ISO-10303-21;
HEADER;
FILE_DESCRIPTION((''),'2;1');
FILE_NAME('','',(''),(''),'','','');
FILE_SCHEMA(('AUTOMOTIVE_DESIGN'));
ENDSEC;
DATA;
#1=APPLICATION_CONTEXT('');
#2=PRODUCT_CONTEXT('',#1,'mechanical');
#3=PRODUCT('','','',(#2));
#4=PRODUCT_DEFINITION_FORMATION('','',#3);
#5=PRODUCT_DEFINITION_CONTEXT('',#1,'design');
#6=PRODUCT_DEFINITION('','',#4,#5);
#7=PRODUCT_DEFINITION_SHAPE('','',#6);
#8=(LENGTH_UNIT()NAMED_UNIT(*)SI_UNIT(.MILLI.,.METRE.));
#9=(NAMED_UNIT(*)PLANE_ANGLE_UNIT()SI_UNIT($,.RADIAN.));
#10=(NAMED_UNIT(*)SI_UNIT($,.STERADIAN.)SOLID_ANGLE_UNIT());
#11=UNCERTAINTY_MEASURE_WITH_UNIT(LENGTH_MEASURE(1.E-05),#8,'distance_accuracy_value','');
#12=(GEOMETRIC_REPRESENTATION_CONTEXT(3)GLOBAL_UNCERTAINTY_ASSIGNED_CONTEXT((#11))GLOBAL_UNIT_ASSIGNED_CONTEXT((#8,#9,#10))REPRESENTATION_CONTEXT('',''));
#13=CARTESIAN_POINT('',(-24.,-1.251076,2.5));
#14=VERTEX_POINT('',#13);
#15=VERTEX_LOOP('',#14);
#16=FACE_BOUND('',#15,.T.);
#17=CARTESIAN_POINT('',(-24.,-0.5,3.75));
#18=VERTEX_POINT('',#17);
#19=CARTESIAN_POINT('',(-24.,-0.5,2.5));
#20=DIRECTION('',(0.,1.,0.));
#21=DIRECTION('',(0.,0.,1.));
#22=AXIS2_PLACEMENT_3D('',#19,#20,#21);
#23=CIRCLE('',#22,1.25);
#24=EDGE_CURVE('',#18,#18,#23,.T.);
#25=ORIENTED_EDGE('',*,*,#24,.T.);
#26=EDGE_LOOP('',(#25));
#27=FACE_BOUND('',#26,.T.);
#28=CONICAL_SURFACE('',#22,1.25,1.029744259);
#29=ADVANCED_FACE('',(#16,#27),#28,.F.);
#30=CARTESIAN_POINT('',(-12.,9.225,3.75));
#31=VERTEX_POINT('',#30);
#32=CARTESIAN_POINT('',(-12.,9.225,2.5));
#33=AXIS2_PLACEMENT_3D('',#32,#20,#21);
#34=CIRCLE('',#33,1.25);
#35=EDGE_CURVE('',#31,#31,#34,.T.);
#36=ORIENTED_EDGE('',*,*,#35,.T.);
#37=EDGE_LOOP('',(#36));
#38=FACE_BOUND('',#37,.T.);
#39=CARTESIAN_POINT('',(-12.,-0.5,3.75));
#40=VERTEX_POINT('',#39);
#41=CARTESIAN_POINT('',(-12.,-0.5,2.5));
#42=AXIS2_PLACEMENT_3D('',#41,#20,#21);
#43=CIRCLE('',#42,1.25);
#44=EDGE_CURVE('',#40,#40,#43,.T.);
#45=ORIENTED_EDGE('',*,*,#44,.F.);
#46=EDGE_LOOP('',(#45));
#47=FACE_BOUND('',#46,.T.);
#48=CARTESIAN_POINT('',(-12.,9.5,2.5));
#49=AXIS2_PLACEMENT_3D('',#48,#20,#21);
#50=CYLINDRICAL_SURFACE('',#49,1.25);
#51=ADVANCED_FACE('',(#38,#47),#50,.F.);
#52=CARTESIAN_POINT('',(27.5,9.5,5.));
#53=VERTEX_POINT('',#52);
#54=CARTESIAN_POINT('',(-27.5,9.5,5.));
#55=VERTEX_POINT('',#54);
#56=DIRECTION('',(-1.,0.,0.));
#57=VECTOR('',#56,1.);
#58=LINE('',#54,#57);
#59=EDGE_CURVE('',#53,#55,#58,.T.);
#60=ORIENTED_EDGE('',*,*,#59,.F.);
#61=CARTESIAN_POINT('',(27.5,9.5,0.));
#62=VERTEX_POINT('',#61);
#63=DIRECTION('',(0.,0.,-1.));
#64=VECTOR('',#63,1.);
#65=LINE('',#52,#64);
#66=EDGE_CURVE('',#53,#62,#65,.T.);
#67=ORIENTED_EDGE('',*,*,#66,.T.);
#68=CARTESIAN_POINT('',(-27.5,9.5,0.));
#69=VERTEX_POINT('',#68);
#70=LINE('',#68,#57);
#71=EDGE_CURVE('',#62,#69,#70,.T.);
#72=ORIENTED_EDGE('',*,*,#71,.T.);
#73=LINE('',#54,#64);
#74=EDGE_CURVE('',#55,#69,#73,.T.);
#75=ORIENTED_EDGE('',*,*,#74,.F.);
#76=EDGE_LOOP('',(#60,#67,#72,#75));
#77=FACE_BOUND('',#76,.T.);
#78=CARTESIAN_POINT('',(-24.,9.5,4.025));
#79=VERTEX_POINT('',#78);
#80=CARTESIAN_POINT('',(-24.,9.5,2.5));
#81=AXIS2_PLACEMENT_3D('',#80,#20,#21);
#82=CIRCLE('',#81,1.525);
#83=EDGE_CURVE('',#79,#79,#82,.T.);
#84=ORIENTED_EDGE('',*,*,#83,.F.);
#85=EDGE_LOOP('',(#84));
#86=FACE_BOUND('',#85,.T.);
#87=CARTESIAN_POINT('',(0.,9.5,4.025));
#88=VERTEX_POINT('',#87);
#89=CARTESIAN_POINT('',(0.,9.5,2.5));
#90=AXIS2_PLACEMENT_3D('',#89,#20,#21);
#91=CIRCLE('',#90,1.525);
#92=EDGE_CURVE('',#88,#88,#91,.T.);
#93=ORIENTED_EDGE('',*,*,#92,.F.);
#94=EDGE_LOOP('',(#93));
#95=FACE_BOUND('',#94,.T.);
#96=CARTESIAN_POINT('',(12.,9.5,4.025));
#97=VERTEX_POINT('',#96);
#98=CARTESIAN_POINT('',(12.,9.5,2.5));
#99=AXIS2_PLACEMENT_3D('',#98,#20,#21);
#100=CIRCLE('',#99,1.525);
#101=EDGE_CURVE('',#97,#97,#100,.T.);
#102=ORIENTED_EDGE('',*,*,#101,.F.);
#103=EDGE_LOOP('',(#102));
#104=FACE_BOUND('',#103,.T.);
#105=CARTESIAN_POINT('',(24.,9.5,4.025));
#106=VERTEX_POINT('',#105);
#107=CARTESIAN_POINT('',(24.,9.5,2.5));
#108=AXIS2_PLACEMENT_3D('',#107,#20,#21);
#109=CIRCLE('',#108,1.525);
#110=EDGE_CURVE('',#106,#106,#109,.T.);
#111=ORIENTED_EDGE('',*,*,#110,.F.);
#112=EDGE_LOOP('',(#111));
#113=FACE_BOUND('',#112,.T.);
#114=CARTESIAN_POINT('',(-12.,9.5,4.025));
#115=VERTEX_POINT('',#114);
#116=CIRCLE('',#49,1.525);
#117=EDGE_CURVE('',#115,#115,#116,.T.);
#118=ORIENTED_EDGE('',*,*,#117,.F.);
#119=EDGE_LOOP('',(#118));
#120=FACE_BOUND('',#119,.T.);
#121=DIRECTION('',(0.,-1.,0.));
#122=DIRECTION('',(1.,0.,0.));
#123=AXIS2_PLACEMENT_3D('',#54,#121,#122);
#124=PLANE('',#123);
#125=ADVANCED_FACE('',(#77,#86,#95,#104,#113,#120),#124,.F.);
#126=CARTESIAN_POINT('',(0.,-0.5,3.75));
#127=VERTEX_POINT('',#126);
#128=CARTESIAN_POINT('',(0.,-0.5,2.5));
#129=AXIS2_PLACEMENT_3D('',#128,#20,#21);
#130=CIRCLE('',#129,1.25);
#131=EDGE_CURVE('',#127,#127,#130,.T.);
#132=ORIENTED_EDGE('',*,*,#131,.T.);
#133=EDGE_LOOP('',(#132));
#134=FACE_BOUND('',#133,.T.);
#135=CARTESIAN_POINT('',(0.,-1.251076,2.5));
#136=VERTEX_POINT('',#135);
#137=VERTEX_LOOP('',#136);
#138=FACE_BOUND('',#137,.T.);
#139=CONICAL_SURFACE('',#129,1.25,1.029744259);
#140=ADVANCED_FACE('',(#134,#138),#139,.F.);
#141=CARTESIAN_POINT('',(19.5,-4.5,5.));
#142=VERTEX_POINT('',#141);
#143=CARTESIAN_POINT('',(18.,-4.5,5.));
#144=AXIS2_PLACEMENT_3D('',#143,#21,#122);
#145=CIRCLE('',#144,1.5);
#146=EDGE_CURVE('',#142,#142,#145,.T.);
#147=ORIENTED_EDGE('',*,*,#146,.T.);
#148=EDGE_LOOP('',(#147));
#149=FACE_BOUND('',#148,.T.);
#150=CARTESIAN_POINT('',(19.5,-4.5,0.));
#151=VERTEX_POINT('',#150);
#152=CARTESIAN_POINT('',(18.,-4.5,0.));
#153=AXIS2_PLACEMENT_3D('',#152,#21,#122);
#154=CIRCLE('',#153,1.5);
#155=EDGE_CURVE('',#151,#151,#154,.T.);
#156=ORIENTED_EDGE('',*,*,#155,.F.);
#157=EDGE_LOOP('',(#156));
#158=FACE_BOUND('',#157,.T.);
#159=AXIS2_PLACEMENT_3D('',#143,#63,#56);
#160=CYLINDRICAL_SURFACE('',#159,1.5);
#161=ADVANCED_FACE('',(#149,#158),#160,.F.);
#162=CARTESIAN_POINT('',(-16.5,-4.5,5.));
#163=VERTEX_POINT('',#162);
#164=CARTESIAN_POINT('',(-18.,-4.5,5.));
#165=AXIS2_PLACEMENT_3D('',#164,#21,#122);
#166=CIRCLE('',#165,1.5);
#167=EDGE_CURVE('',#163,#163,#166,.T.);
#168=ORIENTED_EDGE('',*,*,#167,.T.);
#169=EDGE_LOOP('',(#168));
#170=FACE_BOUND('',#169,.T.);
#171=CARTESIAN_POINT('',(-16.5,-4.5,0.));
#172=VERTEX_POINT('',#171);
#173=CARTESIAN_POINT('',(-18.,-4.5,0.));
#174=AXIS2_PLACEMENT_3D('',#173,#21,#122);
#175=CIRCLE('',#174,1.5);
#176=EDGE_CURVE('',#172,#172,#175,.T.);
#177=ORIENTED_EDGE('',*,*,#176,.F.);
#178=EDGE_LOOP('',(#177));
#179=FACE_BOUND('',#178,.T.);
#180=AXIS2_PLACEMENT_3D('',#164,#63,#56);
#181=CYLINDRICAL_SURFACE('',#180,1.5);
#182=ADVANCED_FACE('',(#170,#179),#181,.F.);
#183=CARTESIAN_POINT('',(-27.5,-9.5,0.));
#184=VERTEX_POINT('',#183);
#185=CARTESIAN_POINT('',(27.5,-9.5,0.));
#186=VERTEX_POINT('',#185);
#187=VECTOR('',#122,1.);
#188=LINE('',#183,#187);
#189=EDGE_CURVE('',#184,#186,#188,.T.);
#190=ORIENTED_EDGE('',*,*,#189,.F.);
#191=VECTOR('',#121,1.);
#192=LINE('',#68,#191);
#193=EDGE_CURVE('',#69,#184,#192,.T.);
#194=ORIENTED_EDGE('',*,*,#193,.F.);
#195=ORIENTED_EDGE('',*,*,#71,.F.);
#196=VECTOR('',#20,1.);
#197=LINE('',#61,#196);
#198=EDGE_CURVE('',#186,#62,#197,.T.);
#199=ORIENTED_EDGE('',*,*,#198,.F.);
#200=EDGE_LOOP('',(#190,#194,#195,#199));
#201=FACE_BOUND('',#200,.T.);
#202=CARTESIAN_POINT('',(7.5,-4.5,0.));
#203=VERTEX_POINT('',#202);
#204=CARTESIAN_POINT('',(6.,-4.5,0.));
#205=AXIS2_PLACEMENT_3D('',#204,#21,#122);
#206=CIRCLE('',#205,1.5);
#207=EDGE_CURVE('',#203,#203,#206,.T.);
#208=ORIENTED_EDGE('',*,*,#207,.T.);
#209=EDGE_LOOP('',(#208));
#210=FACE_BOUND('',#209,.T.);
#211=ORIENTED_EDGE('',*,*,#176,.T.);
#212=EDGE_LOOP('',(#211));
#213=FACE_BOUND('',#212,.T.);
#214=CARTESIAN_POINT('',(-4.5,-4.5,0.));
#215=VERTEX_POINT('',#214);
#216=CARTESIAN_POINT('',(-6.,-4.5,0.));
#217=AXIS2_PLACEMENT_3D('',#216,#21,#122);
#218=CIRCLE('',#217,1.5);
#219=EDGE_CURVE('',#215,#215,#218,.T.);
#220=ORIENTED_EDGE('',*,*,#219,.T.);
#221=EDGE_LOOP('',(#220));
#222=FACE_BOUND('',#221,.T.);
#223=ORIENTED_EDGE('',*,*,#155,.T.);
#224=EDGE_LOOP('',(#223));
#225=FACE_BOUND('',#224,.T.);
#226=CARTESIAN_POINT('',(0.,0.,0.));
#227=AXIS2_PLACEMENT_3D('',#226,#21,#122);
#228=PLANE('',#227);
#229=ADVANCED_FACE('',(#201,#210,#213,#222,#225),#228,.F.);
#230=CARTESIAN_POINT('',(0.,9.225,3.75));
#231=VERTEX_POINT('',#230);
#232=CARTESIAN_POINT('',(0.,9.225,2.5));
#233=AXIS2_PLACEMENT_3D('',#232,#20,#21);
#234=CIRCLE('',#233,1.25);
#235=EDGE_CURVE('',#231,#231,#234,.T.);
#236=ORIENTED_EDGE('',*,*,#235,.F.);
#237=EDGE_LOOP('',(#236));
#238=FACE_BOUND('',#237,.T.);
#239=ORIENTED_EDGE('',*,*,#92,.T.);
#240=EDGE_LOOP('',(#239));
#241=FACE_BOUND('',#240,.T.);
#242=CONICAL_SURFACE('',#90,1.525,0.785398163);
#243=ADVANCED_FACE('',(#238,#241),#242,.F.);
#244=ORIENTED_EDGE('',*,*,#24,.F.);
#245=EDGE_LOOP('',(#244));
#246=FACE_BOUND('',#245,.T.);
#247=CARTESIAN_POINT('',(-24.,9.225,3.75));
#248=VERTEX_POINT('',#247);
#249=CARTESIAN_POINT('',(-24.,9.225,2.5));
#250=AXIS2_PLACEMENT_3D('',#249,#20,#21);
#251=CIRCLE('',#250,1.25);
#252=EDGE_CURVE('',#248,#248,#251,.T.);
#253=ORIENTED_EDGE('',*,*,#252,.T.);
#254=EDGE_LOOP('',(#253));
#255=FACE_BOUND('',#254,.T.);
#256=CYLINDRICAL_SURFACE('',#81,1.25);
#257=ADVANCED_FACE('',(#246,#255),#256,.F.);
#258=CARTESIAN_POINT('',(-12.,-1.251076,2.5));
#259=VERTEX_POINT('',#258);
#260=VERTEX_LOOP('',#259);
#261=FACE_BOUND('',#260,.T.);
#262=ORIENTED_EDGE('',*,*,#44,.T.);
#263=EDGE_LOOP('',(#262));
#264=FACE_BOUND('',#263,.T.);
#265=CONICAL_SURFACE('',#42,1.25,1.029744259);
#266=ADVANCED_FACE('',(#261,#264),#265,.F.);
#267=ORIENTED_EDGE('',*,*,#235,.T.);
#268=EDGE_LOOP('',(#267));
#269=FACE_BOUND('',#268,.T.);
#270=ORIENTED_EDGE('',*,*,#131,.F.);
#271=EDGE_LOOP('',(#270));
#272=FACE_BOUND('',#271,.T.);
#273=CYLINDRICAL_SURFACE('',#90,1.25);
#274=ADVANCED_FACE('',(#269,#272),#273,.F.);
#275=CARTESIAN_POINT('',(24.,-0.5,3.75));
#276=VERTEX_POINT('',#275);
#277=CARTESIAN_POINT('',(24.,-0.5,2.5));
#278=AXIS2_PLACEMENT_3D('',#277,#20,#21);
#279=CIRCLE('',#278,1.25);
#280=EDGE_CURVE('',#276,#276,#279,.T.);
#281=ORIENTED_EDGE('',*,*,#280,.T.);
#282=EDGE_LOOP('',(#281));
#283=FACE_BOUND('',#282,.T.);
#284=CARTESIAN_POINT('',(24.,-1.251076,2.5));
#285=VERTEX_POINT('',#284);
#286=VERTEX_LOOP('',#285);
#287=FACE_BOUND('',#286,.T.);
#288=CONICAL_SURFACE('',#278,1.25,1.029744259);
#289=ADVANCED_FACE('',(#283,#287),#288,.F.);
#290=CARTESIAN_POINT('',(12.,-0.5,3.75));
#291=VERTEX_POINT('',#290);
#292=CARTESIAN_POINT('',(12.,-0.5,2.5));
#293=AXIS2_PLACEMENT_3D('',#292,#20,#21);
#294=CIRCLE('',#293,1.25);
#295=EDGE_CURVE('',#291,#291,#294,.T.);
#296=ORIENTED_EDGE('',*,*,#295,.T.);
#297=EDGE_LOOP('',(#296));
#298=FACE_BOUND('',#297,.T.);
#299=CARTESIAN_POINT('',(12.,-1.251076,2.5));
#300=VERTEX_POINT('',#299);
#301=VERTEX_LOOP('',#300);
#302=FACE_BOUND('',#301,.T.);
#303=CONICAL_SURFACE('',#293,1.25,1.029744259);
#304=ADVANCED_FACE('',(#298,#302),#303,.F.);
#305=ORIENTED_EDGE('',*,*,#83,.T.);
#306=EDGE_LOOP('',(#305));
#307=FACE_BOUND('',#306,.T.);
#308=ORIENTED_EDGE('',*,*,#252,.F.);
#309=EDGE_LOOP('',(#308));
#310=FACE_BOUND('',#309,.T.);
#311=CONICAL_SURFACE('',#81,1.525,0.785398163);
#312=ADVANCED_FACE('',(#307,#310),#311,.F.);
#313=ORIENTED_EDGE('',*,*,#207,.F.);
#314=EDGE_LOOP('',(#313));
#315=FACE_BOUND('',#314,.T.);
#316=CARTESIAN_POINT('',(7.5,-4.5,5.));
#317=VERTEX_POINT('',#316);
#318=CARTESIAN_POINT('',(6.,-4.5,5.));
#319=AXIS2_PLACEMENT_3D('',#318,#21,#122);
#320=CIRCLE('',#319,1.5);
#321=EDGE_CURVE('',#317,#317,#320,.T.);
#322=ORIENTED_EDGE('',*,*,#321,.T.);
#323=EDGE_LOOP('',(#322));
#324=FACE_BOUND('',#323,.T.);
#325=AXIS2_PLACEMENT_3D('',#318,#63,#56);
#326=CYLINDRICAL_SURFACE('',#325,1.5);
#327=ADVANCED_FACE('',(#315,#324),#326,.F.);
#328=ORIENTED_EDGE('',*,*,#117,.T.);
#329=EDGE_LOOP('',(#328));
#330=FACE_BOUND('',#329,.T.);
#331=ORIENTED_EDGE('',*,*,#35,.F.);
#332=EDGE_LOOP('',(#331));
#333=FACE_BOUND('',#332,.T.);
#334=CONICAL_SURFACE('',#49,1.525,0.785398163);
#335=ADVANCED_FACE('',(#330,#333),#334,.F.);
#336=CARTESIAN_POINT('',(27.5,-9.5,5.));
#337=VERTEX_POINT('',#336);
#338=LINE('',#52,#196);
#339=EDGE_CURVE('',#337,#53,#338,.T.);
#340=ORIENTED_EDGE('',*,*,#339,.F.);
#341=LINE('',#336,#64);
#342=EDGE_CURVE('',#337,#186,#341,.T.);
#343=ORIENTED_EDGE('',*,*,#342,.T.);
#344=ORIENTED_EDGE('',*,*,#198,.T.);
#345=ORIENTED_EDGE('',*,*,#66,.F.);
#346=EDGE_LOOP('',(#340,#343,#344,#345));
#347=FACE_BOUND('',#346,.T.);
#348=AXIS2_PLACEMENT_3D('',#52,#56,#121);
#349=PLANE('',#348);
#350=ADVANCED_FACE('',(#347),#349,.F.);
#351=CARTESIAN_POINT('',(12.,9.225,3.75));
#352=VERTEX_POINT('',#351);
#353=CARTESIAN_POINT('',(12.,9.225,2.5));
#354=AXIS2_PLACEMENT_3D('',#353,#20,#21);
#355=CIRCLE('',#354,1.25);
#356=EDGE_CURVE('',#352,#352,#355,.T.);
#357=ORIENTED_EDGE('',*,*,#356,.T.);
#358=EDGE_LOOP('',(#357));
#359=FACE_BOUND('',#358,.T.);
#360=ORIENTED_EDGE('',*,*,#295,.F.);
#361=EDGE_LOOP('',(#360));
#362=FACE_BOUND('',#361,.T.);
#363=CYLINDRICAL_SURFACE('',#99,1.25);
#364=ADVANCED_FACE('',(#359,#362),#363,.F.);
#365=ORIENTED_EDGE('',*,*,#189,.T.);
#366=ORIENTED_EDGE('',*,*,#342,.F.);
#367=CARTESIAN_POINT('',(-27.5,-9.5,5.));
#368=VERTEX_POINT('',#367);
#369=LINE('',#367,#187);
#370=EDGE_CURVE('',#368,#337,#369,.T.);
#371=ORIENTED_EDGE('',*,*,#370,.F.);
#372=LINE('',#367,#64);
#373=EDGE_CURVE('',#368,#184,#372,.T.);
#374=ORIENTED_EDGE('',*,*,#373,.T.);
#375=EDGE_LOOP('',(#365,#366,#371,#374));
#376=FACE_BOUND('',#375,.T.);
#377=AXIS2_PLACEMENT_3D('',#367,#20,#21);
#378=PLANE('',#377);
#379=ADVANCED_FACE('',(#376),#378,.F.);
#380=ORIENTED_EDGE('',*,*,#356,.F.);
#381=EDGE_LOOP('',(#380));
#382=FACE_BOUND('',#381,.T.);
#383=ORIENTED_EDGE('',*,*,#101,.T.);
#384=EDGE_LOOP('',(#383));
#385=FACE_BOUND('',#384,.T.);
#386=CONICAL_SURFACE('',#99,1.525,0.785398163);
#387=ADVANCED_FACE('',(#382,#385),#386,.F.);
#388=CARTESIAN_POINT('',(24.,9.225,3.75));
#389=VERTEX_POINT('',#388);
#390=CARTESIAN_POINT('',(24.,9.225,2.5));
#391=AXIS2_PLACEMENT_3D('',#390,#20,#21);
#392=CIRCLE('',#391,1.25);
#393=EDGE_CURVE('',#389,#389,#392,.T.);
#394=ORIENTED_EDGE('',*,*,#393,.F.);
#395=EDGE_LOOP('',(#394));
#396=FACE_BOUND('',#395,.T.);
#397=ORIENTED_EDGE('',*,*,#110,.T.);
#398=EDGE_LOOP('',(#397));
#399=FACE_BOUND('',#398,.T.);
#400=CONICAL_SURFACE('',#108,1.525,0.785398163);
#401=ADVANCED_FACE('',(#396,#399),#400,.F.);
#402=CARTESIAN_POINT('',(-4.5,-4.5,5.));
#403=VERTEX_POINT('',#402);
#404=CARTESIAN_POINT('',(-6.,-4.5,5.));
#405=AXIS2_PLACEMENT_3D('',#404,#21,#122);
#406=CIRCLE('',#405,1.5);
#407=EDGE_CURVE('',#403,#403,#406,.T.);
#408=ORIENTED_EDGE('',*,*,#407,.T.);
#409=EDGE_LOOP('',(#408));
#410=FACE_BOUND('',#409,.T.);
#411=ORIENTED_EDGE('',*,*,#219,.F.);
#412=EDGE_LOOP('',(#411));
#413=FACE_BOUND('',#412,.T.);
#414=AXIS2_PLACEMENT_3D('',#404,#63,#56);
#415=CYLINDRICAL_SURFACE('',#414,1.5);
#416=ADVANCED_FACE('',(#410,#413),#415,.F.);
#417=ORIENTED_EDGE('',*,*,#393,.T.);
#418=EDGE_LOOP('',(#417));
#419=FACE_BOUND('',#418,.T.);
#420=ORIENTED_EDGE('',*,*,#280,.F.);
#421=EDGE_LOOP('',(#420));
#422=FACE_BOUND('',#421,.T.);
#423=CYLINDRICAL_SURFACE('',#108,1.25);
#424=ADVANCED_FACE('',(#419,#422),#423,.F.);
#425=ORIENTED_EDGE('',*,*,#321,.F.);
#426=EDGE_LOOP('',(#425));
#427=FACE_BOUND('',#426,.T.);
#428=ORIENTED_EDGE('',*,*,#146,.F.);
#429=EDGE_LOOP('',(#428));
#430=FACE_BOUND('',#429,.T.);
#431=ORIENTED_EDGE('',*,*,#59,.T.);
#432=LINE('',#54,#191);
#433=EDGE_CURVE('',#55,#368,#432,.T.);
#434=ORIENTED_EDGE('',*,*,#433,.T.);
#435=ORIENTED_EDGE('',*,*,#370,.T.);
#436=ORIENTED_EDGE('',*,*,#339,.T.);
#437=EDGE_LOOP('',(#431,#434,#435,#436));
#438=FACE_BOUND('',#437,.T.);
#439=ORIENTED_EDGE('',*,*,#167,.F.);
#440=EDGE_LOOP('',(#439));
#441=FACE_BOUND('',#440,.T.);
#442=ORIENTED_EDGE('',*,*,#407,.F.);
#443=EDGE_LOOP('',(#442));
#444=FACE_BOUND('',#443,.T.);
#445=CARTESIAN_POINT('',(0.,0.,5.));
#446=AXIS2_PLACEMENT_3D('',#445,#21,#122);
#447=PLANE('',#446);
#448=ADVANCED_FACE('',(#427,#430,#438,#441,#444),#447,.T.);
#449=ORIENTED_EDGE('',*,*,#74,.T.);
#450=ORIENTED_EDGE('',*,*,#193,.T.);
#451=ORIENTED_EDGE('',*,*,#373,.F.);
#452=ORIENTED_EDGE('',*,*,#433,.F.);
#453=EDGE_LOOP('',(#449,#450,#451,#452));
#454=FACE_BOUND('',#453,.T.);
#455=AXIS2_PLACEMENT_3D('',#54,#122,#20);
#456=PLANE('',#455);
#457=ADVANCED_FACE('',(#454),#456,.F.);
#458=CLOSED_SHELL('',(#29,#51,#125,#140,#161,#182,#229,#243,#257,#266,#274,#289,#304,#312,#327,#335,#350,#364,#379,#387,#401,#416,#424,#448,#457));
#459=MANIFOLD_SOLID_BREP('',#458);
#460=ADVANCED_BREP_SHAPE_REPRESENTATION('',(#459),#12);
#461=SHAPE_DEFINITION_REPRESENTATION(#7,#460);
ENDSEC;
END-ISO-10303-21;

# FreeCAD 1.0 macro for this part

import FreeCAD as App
import Part
import Sketcher

V = App.Vector


def add_polygon(sketch, points):
    """Adds a closed chain of lines whose ends are joined by coincident constraints."""
    first, n = sketch.GeometryCount, len(points)
    for a, b in zip(points, points[1:] + points[:1]):
        sketch.addGeometry(Part.LineSegment(App.Vector(*a, 0), App.Vector(*b, 0)), False)
    for i in range(n):
        sketch.addConstraint(Sketcher.Constraint("Coincident", first + i, 2, first + (i + 1) % n, 1))

doc = App.newDocument("Part")
params = doc.addObject("Spreadsheet::Sheet", "Params")
for row, (alias, value) in enumerate([
    ("sketch1_diameter", "3 mm"),
    ("sketch1_width", "55 mm"),
    ("sketch1_height", "19 mm"),
    ("pad1_length", "5 mm"),
    ("sketch2_diameter", "2.5 mm"),
    ("hole_diameter", "2.5 mm"),
    ("hole_depth", "10 mm"),
    ("hole_csink_diameter", "3.05 mm"),
], start=1):
    params.set(f"A{row}", alias)
    params.set(f"B{row}", "=" + value)
    params.setAlias(f"B{row}", alias)

body = doc.addObject("PartDesign::Body", "Body")

sketch1 = body.newObject("Sketcher::SketchObject", "Sketch")
sketch1.AttachmentSupport = (doc.getObject("XY_Plane"), [""])
sketch1.MapMode = "FlatFace"
add_polygon(sketch1, [(-27.5, 9.5), (-27.5, -9.5), (27.5, -9.5), (27.5, 9.5)])
sketch1.addGeometry(Part.Circle(V(-18, -4.5, 0), V(0, 0, 1), 1.5), False)
sketch1.addGeometry(Part.Circle(V(-6, -4.5, 0), V(0, 0, 1), 1.5), False)
sketch1.addGeometry(Part.Circle(V(6, -4.5, 0), V(0, 0, 1), 1.5), False)
sketch1.addGeometry(Part.Circle(V(18, -4.5, 0), V(0, 0, 1), 1.5), False)
sketch1.addConstraint([
    Sketcher.Constraint("Vertical", 0),
    Sketcher.Constraint("Horizontal", 1),
    Sketcher.Constraint("Vertical", 2),
    Sketcher.Constraint("Horizontal", 3),
    Sketcher.Constraint("Equal", 4, 5),
    Sketcher.Constraint("Equal", 5, 6),
    Sketcher.Constraint("Equal", 6, 7),
    Sketcher.Constraint("Symmetric", 0, 2, 2, 2, -1, 1),
    Sketcher.Constraint("Symmetric", 5, 3, 6, 3, -2),
    Sketcher.Constraint("Symmetric", 4, 3, 7, 3, -2),
    Sketcher.Constraint("Horizontal", 4, 3, 5, 3),
    Sketcher.Constraint("Diameter", 4, 3.0),
    Sketcher.Constraint("DistanceX", 1, 1, 1, 2, 55.0),
    Sketcher.Constraint("DistanceY", 0, 2, 0, 1, 19.0),
    Sketcher.Constraint("DistanceX", 4, 3, -1, 1, 18.0),
    Sketcher.Constraint("DistanceX", 5, 3, -1, 1, 6.0),
    Sketcher.Constraint("DistanceY", 0, 2, 4, 3, 5.0),
])
sketch1.setExpression("Constraints[15]", "Params.sketch1_diameter")
sketch1.setExpression("Constraints[16]", "Params.sketch1_width")
sketch1.setExpression("Constraints[17]", "Params.sketch1_height")
pad1 = body.newObject("PartDesign::Pad", "Pad")
pad1.Profile = sketch1
pad1.setExpression("Length", "Params.pad1_length")

sketch2 = body.newObject("Sketcher::SketchObject", "Sketch001")
sketch2.AttachmentSupport = (doc.getObject("XZ_Plane"), [""])
sketch2.MapMode = "FlatFace"
sketch2.AttachmentOffset = App.Placement(V(0, 0, -9.5), App.Rotation())
sketch2.addGeometry([
    Part.Circle(V(-24, 2.5, 0), V(0, 0, 1), 1.25),
    Part.Circle(V(-12, 2.5, 0), V(0, 0, 1), 1.25),
    Part.Circle(V(0, 2.5, 0), V(0, 0, 1), 1.25),
    Part.Circle(V(12, 2.5, 0), V(0, 0, 1), 1.25),
    Part.Circle(V(24, 2.5, 0), V(0, 0, 1), 1.25),
], False)
sketch2.addConstraint([
    Sketcher.Constraint("Equal", 0, 1),
    Sketcher.Constraint("Equal", 1, 2),
    Sketcher.Constraint("Equal", 2, 3),
    Sketcher.Constraint("Equal", 3, 4),
    Sketcher.Constraint("Symmetric", 1, 3, 3, 3, -2),
    Sketcher.Constraint("Symmetric", 0, 3, 4, 3, -2),
    Sketcher.Constraint("PointOnObject", 2, 3, -2),
    Sketcher.Constraint("Horizontal", 0, 3, 1, 3),
    Sketcher.Constraint("Horizontal", 1, 3, 2, 3),
    Sketcher.Constraint("Diameter", 0, 2.5),
    Sketcher.Constraint("DistanceX", 0, 3, -1, 1, 24.0),
    Sketcher.Constraint("DistanceX", 1, 3, -1, 1, 12.0),
    Sketcher.Constraint("DistanceY", -1, 1, 0, 3, 2.5),
])
sketch2.setExpression("Constraints[9]", "Params.sketch2_diameter")
doc.recompute()
hole = body.newObject("PartDesign::Hole", "Hole")
hole.Profile = sketch2
hole.ThreadType = "None"
hole.setExpression("Diameter", "Params.hole_diameter")
hole.DepthType = "Dimension"
hole.setExpression("Depth", "Params.hole_depth")
hole.DrillPoint = "Angled"
hole.DrillPointAngle = 118
hole.HoleCutType = "Countersink"
hole.setExpression("HoleCutDiameter", "Params.hole_csink_diameter")
hole.HoleCutCountersinkAngle = 90
hole.Reversed = True

doc.recompute()
